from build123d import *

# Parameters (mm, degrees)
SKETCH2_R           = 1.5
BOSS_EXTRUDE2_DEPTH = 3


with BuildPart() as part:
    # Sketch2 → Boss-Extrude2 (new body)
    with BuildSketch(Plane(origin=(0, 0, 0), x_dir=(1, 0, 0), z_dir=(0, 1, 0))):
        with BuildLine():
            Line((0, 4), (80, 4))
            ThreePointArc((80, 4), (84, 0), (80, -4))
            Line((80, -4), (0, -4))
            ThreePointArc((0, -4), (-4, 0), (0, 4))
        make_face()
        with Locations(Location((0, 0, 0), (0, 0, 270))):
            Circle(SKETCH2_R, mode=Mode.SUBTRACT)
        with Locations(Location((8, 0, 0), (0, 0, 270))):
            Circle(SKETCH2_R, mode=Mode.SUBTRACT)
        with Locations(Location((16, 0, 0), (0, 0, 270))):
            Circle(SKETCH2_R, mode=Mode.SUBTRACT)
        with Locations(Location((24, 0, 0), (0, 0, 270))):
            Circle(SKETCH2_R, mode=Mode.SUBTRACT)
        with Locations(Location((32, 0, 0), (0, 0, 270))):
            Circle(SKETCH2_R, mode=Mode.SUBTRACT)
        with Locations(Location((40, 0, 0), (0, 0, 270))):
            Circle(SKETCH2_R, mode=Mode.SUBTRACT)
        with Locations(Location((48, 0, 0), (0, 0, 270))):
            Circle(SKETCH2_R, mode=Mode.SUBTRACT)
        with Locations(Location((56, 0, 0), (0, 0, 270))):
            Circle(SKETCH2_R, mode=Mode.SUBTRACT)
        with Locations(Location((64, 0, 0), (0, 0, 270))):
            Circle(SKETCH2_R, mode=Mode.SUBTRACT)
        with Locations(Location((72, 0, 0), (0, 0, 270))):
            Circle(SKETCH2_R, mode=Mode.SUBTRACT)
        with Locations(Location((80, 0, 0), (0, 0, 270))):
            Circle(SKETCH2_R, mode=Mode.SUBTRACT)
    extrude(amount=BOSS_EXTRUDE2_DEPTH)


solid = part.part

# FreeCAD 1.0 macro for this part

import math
import FreeCAD as App
import Part
import Sketcher
from FreeCAD import Vector

doc = App.newDocument("Part")
body = doc.addObject("PartDesign::Body", "Body")

sketch1 = body.newObject("Sketcher::SketchObject", "Sketch")
sketch1.AttachmentSupport = (doc.getObject("XZ_Plane"), [""])
sketch1.MapMode = "FlatFace"
sketch1.addGeometry([
    Part.LineSegment(Vector(80, -4, 0), Vector(0, -4, 0)),
    Part.ArcOfCircle(Part.Circle(Vector(0, 0, 0), Vector(0, 0, 1), 4), math.radians(90), math.radians(270)),
    Part.LineSegment(Vector(0, 4, 0), Vector(80, 4, 0)),
    Part.ArcOfCircle(Part.Circle(Vector(80, 0, 0), Vector(0, 0, 1), 4), math.radians(-90), math.radians(90)),
    Part.Circle(Vector(80, 0, 0), Vector(0, 0, 1), 1.5),
    Part.Circle(Vector(72, 0, 0), Vector(0, 0, 1), 1.5),
    Part.Circle(Vector(64, 0, 0), Vector(0, 0, 1), 1.5),
    Part.Circle(Vector(56, 0, 0), Vector(0, 0, 1), 1.5),
    Part.Circle(Vector(48, 0, 0), Vector(0, 0, 1), 1.5),
    Part.Circle(Vector(40, 0, 0), Vector(0, 0, 1), 1.5),
    Part.Circle(Vector(32, 0, 0), Vector(0, 0, 1), 1.5),
    Part.Circle(Vector(24, 0, 0), Vector(0, 0, 1), 1.5),
    Part.Circle(Vector(16, 0, 0), Vector(0, 0, 1), 1.5),
    Part.Circle(Vector(8, 0, 0), Vector(0, 0, 1), 1.5),
    Part.Circle(Vector(0, 0, 0), Vector(0, 0, 1), 1.5),
], False)
sketch1.addConstraint([
    Sketcher.Constraint("Tangent", 0, 2, 1, 2),
    Sketcher.Constraint("Tangent", 1, 1, 2, 1),
    Sketcher.Constraint("Tangent", 2, 2, 3, 2),
    Sketcher.Constraint("Tangent", 3, 1, 0, 1),
    Sketcher.Constraint("Horizontal", 0),
    Sketcher.Constraint("Horizontal", 2),
    Sketcher.Constraint("Coincident", 1, 3, -1, 1),
    Sketcher.Constraint("Coincident", 14, 3, -1, 1),
    Sketcher.Constraint("Coincident", 4, 3, 3, 3),
    Sketcher.Constraint("Equal", 4, 5),
    Sketcher.Constraint("Equal", 5, 6),
    Sketcher.Constraint("Equal", 6, 7),
    Sketcher.Constraint("Equal", 7, 8),
    Sketcher.Constraint("Equal", 8, 9),
    Sketcher.Constraint("Equal", 9, 10),
    Sketcher.Constraint("Equal", 10, 11),
    Sketcher.Constraint("Equal", 11, 12),
    Sketcher.Constraint("Equal", 12, 13),
    Sketcher.Constraint("Equal", 13, 14),
    Sketcher.Constraint("PointOnObject", 5, 3, -1),
    Sketcher.Constraint("PointOnObject", 6, 3, -1),
    Sketcher.Constraint("PointOnObject", 7, 3, -1),
    Sketcher.Constraint("PointOnObject", 8, 3, -1),
    Sketcher.Constraint("PointOnObject", 9, 3, -1),
    Sketcher.Constraint("PointOnObject", 10, 3, -1),
    Sketcher.Constraint("PointOnObject", 11, 3, -1),
    Sketcher.Constraint("PointOnObject", 12, 3, -1),
    Sketcher.Constraint("PointOnObject", 13, 3, -1),
    Sketcher.Constraint("Diameter", 4, 3.0),
    Sketcher.Constraint("Radius", 1, 4.0),
    Sketcher.Constraint("DistanceX", 0, 2, 0, 1, 80.0),
    Sketcher.Constraint("DistanceX", -1, 1, 5, 3, 72.0),
    Sketcher.Constraint("DistanceX", -1, 1, 6, 3, 64.0),
    Sketcher.Constraint("DistanceX", -1, 1, 7, 3, 56.0),
    Sketcher.Constraint("DistanceX", -1, 1, 8, 3, 48.0),
    Sketcher.Constraint("DistanceX", -1, 1, 9, 3, 40.0),
    Sketcher.Constraint("DistanceX", -1, 1, 10, 3, 32.0),
    Sketcher.Constraint("DistanceX", -1, 1, 11, 3, 24.0),
    Sketcher.Constraint("DistanceX", -1, 1, 12, 3, 16.0),
    Sketcher.Constraint("DistanceX", -1, 1, 13, 3, 8.0),
])
pad1 = body.newObject("PartDesign::Pad", "Pad")
pad1.Profile = sketch1
pad1.Length = 3
pad1.Reversed = True

doc.recompute()
